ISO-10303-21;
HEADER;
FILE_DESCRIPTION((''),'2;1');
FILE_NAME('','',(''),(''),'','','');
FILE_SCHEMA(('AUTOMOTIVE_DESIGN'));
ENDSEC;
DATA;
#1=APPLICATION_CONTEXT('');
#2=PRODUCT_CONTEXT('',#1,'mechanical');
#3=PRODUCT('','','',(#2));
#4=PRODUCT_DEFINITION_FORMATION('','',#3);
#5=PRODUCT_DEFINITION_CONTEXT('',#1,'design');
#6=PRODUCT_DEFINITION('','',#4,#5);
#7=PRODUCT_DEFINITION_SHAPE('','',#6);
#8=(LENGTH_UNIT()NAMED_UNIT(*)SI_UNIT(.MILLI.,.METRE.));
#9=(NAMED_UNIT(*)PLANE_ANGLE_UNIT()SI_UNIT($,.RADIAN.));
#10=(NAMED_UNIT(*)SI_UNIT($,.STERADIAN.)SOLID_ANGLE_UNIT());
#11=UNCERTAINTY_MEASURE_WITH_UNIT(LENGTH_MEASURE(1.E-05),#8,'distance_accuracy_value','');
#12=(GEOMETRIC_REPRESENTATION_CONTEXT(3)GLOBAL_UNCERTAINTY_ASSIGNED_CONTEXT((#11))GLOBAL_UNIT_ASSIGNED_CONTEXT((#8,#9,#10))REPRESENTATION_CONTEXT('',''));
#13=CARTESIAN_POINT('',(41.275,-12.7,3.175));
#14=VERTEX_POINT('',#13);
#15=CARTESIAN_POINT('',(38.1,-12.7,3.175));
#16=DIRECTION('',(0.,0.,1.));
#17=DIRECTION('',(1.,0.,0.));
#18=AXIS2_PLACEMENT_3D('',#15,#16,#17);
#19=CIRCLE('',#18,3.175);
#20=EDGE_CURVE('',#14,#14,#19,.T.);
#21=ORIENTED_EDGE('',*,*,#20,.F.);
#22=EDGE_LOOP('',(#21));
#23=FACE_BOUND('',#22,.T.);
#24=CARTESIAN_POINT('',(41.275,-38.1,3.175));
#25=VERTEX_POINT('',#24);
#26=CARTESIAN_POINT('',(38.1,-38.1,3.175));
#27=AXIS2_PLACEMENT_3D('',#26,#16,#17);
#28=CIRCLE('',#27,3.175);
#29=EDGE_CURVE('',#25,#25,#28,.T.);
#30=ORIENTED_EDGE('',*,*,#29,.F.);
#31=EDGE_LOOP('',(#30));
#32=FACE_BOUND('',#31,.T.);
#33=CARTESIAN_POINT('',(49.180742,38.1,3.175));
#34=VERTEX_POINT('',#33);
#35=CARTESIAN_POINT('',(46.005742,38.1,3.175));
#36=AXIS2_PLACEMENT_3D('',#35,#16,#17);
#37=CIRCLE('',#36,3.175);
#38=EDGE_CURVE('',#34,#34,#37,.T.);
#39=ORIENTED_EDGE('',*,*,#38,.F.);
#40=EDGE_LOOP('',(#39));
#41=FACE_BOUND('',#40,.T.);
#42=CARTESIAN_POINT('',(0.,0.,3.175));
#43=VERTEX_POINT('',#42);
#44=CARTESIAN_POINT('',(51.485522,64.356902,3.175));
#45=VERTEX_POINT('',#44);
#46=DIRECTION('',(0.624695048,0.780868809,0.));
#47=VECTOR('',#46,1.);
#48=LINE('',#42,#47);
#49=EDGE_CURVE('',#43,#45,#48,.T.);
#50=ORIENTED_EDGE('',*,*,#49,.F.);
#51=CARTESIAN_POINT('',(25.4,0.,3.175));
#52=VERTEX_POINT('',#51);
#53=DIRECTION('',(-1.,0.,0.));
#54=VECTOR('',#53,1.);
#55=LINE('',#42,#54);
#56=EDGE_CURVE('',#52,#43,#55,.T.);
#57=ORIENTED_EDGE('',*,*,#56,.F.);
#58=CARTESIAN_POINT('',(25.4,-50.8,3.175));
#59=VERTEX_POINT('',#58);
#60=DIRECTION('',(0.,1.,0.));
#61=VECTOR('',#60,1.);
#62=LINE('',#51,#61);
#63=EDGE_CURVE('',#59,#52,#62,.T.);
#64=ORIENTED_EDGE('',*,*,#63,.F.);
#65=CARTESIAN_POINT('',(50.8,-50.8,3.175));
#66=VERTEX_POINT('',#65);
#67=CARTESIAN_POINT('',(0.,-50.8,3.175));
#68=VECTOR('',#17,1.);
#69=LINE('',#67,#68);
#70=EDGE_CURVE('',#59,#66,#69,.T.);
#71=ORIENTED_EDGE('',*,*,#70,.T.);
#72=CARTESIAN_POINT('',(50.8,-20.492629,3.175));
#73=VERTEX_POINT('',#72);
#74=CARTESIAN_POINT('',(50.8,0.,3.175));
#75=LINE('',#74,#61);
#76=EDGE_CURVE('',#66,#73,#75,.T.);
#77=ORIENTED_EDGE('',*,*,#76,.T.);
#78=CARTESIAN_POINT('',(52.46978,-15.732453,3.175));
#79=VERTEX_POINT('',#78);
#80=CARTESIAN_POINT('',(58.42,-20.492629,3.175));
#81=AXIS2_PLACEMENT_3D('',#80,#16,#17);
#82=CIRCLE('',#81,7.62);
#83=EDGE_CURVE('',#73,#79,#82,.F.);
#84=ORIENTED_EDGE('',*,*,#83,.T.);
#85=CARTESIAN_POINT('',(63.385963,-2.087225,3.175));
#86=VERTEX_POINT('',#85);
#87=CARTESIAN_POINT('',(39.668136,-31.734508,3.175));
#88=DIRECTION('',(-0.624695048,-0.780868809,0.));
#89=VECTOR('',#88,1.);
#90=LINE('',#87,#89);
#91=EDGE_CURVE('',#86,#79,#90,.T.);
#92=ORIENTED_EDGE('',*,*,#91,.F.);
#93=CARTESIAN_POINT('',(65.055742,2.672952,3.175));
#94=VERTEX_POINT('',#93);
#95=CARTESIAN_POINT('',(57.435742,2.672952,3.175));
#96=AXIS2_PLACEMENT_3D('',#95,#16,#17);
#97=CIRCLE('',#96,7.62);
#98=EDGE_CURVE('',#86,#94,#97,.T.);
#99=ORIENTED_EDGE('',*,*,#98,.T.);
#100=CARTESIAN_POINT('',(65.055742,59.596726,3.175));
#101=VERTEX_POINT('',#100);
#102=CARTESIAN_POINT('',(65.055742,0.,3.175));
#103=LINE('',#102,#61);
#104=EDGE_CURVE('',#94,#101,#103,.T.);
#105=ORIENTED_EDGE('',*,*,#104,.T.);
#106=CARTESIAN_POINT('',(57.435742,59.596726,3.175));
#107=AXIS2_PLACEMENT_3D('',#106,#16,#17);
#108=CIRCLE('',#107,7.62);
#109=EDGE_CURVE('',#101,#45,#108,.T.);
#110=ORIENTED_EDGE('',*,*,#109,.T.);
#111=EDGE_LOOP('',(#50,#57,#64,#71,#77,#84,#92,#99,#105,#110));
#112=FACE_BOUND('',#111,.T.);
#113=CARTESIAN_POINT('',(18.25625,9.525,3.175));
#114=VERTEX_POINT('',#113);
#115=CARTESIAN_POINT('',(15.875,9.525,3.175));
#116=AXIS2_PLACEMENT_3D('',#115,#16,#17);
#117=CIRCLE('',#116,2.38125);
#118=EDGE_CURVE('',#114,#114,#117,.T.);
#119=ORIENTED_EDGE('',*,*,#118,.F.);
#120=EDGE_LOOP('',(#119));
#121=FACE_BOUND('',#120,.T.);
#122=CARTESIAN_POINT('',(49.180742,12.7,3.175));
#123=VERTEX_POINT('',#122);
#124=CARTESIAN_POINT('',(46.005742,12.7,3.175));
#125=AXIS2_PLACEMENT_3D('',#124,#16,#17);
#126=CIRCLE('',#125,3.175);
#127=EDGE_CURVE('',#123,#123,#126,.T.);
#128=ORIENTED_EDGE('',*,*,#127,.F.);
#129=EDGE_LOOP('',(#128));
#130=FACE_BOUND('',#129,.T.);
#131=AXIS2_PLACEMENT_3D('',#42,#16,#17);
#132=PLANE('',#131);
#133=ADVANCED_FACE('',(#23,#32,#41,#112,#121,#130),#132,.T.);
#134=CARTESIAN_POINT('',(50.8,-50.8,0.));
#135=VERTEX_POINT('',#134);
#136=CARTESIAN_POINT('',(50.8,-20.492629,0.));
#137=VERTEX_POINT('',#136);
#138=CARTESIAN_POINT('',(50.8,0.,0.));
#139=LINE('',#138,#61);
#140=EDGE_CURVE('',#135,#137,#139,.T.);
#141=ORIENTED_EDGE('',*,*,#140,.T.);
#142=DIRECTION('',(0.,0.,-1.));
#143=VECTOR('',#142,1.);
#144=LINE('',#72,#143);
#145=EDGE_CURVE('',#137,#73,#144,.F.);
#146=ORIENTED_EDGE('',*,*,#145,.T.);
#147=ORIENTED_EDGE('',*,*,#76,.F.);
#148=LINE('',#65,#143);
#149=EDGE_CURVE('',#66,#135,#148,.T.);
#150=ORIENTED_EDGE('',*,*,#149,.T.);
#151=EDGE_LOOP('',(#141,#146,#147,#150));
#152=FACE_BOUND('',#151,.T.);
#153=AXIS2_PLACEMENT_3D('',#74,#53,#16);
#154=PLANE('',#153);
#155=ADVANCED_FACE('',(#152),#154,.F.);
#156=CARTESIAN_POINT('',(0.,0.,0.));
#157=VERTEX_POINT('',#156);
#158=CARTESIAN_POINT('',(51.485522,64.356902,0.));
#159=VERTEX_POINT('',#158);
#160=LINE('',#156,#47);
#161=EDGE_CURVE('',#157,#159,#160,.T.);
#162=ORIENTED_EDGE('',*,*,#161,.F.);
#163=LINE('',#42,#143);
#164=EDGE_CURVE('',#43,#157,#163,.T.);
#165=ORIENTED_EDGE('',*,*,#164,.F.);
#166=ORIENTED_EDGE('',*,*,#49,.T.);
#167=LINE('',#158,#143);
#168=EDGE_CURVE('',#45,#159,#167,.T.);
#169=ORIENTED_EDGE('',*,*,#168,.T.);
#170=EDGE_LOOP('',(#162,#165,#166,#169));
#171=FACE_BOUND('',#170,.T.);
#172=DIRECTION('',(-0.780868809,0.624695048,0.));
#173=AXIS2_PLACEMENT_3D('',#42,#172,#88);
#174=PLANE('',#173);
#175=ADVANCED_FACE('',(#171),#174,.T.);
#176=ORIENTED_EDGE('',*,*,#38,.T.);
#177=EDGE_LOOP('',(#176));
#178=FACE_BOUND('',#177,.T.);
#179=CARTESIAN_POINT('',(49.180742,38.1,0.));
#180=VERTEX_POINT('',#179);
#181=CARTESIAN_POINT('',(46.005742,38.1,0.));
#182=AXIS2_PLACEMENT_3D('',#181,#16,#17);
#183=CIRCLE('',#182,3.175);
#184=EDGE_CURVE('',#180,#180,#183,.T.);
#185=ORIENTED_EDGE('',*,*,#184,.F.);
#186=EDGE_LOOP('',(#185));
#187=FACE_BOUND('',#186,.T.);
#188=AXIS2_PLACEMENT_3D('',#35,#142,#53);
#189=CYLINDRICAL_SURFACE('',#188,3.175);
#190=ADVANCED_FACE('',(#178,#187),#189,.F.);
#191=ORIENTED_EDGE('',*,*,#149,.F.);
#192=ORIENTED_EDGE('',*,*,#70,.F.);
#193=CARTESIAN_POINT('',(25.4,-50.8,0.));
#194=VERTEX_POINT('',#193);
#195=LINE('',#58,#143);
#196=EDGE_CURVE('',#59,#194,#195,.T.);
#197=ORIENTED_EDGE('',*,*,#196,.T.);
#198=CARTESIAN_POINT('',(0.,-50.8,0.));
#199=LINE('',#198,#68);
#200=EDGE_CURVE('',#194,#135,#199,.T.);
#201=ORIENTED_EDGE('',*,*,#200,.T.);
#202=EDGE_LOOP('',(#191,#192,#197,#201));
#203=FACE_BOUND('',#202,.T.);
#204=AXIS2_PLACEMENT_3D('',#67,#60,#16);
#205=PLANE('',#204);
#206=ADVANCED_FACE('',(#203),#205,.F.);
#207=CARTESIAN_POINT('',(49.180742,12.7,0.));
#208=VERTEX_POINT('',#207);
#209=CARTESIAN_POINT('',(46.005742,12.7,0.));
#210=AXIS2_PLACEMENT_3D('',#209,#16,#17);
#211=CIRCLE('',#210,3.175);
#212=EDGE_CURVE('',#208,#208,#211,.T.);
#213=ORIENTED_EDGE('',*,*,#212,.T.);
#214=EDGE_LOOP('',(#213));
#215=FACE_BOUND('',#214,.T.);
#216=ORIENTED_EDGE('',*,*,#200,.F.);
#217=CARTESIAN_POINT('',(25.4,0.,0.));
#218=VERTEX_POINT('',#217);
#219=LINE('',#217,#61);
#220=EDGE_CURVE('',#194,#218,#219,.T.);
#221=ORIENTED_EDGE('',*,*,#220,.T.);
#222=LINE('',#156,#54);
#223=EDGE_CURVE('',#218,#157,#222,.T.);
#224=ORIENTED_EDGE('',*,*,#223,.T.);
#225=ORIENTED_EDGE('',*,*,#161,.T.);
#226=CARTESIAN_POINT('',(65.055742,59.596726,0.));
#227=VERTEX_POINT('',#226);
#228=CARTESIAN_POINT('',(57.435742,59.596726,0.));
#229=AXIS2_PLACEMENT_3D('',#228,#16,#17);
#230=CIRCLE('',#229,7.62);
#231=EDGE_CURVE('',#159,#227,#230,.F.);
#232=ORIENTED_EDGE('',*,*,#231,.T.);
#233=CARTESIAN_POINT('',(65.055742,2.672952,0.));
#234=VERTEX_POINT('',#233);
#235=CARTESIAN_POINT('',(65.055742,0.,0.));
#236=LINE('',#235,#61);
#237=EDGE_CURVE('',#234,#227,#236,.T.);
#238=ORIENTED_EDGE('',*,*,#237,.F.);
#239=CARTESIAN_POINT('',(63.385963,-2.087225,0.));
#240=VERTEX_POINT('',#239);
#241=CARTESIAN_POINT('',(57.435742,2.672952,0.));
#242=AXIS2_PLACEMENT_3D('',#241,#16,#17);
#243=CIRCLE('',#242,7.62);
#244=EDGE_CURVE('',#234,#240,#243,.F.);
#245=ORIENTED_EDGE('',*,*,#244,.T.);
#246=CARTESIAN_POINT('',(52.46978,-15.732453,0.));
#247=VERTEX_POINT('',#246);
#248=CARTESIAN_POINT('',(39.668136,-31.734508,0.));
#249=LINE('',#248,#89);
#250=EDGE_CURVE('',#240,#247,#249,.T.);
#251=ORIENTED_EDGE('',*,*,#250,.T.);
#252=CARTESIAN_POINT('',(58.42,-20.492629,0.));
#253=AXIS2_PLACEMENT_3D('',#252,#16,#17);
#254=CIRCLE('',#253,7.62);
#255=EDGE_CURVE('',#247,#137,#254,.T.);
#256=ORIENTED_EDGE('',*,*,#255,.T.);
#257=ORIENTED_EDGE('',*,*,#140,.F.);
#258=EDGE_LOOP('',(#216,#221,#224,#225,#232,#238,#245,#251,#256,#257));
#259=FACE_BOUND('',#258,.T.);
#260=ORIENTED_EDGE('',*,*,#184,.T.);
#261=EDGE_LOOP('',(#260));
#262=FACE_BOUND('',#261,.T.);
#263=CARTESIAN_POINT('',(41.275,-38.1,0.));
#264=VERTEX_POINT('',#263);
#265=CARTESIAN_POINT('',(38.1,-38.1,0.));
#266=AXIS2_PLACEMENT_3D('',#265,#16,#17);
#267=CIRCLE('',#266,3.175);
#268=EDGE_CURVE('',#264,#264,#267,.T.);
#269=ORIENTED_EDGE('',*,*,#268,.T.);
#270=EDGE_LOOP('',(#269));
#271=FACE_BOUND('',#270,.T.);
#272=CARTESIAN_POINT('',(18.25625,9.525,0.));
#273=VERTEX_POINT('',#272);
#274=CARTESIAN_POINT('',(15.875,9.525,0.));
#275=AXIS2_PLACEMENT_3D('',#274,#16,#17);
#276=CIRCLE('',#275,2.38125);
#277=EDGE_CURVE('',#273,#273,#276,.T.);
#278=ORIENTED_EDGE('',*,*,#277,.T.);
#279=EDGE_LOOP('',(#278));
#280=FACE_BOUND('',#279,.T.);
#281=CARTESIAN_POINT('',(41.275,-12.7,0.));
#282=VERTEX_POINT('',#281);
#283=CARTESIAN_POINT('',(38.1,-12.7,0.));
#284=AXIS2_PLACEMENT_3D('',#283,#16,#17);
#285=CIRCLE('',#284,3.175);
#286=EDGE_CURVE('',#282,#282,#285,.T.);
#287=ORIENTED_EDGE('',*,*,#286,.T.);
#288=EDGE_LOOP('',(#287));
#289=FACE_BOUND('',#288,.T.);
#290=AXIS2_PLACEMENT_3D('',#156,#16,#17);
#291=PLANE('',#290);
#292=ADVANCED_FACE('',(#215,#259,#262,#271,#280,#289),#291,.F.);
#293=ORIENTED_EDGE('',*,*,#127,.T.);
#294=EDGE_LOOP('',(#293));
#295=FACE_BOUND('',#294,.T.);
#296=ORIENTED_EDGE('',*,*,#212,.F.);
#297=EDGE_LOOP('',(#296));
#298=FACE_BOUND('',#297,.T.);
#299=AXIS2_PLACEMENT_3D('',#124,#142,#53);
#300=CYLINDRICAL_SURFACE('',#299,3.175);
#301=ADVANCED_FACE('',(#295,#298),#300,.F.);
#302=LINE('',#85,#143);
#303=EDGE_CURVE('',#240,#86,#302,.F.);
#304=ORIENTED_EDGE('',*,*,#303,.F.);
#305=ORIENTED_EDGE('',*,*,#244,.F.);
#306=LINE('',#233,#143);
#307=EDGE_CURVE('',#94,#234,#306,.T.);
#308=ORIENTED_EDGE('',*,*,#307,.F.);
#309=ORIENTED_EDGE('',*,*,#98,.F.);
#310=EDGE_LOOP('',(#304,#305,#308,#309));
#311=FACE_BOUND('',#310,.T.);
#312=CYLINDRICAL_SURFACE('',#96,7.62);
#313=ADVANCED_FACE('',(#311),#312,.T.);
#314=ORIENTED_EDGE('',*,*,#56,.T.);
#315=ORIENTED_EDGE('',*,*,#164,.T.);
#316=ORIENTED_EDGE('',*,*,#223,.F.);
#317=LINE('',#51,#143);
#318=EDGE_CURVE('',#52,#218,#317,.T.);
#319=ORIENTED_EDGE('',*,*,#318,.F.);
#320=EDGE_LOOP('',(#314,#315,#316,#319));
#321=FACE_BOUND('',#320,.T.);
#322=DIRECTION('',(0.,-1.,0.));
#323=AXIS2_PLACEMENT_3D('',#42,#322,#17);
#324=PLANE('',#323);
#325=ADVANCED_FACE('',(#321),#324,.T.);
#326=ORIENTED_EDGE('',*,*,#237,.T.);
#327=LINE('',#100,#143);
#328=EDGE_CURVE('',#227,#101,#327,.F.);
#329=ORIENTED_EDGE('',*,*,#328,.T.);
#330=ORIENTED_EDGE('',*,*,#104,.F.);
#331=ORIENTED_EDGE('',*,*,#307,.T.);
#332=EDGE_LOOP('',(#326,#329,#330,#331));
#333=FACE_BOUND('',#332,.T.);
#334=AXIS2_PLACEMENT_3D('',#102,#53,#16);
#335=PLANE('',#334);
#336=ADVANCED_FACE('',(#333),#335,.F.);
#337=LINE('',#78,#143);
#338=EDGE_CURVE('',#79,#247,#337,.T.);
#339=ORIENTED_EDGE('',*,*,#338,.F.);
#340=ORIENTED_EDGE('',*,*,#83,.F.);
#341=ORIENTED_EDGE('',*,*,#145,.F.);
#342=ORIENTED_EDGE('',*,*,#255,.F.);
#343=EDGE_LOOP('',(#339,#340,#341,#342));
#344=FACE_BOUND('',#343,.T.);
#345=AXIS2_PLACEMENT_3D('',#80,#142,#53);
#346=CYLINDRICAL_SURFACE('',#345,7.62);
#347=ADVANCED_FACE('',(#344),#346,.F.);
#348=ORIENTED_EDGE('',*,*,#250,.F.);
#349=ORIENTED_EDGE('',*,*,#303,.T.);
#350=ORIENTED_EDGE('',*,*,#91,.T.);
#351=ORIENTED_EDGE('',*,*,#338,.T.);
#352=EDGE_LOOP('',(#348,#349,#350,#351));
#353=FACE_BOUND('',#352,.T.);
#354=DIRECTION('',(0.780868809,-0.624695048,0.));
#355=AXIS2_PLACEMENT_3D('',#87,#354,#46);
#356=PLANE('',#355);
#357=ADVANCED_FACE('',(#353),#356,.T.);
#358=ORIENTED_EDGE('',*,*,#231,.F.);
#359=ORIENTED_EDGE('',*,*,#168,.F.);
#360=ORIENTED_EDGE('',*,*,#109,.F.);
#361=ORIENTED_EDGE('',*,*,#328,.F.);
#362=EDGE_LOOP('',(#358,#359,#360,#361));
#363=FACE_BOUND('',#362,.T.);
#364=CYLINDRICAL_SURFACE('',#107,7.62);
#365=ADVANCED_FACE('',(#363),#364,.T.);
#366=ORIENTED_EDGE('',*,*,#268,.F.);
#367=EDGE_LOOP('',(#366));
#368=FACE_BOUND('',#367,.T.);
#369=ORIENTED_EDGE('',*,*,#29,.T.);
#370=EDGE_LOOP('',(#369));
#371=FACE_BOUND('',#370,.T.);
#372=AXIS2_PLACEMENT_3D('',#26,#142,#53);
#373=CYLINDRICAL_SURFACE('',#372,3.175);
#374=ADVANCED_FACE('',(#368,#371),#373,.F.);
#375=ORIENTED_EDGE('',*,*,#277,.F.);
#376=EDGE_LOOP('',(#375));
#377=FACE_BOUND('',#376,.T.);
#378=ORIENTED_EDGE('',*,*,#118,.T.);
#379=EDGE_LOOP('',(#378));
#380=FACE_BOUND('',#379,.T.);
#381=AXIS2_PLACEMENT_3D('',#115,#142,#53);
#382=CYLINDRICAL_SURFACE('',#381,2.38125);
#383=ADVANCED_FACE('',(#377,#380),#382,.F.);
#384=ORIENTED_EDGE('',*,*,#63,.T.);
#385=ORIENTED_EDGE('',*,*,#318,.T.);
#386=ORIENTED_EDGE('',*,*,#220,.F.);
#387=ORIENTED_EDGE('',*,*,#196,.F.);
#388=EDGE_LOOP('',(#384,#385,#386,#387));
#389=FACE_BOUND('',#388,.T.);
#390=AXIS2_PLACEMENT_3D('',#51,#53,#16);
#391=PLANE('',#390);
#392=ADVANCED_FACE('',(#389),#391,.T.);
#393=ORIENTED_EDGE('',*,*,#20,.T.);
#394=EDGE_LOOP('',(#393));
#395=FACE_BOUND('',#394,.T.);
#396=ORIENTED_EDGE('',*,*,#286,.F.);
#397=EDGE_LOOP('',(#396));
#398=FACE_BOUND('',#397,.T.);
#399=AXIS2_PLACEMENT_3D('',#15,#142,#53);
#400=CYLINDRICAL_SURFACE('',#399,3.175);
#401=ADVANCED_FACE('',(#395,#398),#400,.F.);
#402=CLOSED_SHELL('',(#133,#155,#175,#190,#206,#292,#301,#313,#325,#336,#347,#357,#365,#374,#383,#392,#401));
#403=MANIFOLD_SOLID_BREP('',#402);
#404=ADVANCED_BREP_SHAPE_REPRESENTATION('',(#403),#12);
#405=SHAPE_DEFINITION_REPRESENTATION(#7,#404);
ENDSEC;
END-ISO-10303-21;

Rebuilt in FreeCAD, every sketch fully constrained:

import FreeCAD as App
import Part
import Sketcher

V = App.Vector
Q = App.Units.Quantity


def edges_at(feature, points):
    """Names of the edges that pass closest to the given points."""
    edges = feature.Shape.Edges
    near = lambda p: min(range(len(edges)), key=lambda i: edges[i].distToShape(Part.Vertex(*p))[0])
    return sorted({f"Edge{near(p) + 1}" for p in points})


def add_polygon(sketch, points):
    """Adds a closed chain of lines whose ends are joined by coincident constraints."""
    first, n = sketch.GeometryCount, len(points)
    for a, b in zip(points, points[1:] + points[:1]):
        sketch.addGeometry(Part.LineSegment(App.Vector(*a, 0), App.Vector(*b, 0)), False)
    for i in range(n):
        sketch.addConstraint(Sketcher.Constraint("Coincident", first + i, 2, first + (i + 1) % n, 1))

doc = App.newDocument("Part")
body = doc.addObject("PartDesign::Body", "Body")

# Sketch on XY plane
sketch1 = body.newObject("Sketcher::SketchObject", "Sketch")
sketch1.AttachmentSupport = (doc.getObject("XY_Plane"), [""])
sketch1.MapMode = "FlatFace"
add_polygon(sketch1, [(0, 0), (25.4, 0), (25.4, -50.8), (50.8, -50.8), (50.8, -17.8), (65.1, 0), (65.1, 81.3)])  # lines 0-6
sketch1.addGeometry(Part.Circle(V(38.1, -38.1, 0), V(0, 0, 1), 3.2), False)  # 7
sketch1.addGeometry(Part.Circle(V(38.1, -12.7, 0), V(0, 0, 1), 3.2), False)  # 8
sketch1.addGeometry(Part.Circle(V(15.9, 9.5, 0), V(0, 0, 1), 2.4), False)  # 9
sketch1.addGeometry(Part.Circle(V(46, 12.7, 0), V(0, 0, 1), 3.2), False)  # 10
sketch1.addGeometry(Part.Circle(V(46, 38.1, 0), V(0, 0, 1), 3.2), False)  # 11
sketch1.addConstraint(Sketcher.Constraint("Horizontal", 0))
sketch1.addConstraint(Sketcher.Constraint("Vertical", 1))
sketch1.addConstraint(Sketcher.Constraint("Horizontal", 2))
sketch1.addConstraint(Sketcher.Constraint("Vertical", 3))
sketch1.addConstraint(Sketcher.Constraint("Vertical", 5))
sketch1.addConstraint(Sketcher.Constraint("Coincident", 6, 2, -1, 1))
sketch1.addConstraint(Sketcher.Constraint("Equal", 7, 8))
sketch1.addConstraint(Sketcher.Constraint("Equal", 8, 10))
sketch1.addConstraint(Sketcher.Constraint("Equal", 10, 11))
sketch1.addConstraint(Sketcher.Constraint("PointOnObject", 4, 2, -1))
sketch1.addConstraint(Sketcher.Constraint("Parallel", 4, 6))
sketch1.addConstraint(Sketcher.Constraint("Vertical", 7, 3, 8, 3))
sketch1.addConstraint(Sketcher.Constraint("Vertical", 10, 3, 11, 3))
sketch1.addConstraint(Sketcher.Constraint("Equal", 0, 2))
sketch1.addConstraint(Sketcher.Constraint("Diameter", 7, Q("0.25 in")))
sketch1.addConstraint(Sketcher.Constraint("DistanceX", 0, 1, 0, 2, Q("1 in")))
sketch1.addConstraint(Sketcher.Constraint("DistanceY", 1, 2, 1, 1, Q("2 in")))
sketch1.addConstraint(Sketcher.Constraint("Diameter", 9, Q("0.1875 in")))
sketch1.addConstraint(Sketcher.Constraint("DistanceY", 7, 3, 8, 3, Q("1 in")))
sketch1.addConstraint(Sketcher.Constraint("DistanceY", 8, 3, 10, 3, Q("1 in")))
sketch1.addConstraint(Sketcher.Constraint("DistanceY", 10, 3, 11, 3, Q("1 in")))
sketch1.addConstraint(Sketcher.Constraint("Distance", 6, Q("4.1 in")))
sketch1.addConstraint(Sketcher.Constraint("DistanceX", -1, 1, 7, 3, Q("1.5 in")))
sketch1.addConstraint(Sketcher.Constraint("DistanceY", 7, 3, -1, 1, Q("1.5 in")))
sketch1.addConstraint(Sketcher.Constraint("DistanceX", 10, 3, 4, 2, Q("0.75 in")))
sketch1.addConstraint(Sketcher.Constraint("DistanceX", -1, 1, 9, 3, Q("0.625 in")))
sketch1.addConstraint(Sketcher.Constraint("DistanceY", -1, 1, 9, 3, Q("0.375 in")))
sketch1.addConstraint(Sketcher.Constraint("DistanceY", 3, 1, 3, 2, Q("32.980322 mm")))
pad1 = body.newObject("PartDesign::Pad", "Pad")
pad1.Profile = sketch1
pad1.Length = Q("0.125 in")
doc.recompute()

fillet = body.newObject("PartDesign::Fillet", "Fillet")
fillet.Base = (pad1, edges_at(pad1, [(65.056, 81.32, 1.587), (65.056, 0, 1.587), (50.8, -17.82, 1.587)]))
fillet.Radius = Q("0.3 in")

doc.recompute()
